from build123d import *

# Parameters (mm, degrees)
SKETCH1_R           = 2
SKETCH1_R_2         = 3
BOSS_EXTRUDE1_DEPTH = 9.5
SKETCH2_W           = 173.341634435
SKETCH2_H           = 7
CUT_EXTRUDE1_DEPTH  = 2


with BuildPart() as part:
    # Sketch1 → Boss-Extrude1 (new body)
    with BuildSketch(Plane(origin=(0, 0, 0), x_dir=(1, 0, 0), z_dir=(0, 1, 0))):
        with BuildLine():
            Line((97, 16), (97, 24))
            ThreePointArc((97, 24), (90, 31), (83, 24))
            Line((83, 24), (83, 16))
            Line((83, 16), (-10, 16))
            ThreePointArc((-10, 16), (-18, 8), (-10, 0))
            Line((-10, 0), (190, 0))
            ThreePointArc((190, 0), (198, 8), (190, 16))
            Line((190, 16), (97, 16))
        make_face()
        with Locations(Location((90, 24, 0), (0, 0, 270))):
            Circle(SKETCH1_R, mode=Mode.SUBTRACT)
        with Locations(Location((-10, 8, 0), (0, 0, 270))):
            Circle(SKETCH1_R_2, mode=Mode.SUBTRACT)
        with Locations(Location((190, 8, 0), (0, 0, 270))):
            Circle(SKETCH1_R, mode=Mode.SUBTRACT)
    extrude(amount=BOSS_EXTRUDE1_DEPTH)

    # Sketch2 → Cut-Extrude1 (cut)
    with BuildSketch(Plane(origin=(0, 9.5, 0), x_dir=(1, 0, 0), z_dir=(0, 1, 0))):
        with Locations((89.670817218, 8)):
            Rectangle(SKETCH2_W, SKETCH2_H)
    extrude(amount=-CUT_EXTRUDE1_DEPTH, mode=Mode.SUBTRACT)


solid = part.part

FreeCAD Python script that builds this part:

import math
import FreeCAD as App
import Part
import Sketcher
Q = App.Units.Quantity


def add_polygon(sketch, points):
    """Adds a closed chain of lines whose ends are joined by coincident constraints."""
    first, n = sketch.GeometryCount, len(points)
    for a, b in zip(points, points[1:] + points[:1]):
        sketch.addGeometry(Part.LineSegment(App.Vector(*a, 0), App.Vector(*b, 0)), False)
    for i in range(n):
        sketch.addConstraint(Sketcher.Constraint("Coincident", first + i, 2, first + (i + 1) % n, 1))

doc = App.newDocument("Part")
body = doc.addObject("PartDesign::Body", "Body")

sketch1 = doc.addObject("Sketcher::SketchObject", "Sketch")
body.addObject(sketch1)
sketch1.AttachmentSupport = (doc.XZ_Plane, [""])
sketch1.MapMode = "FlatFace"
sketch1.addGeometry([
    Part.LineSegment(App.Vector(97, -16, 0), App.Vector(97, -24, 0)),
    Part.ArcOfCircle(Part.Circle(App.Vector(90, -24, 0), App.Vector(0, 0, 1), 7), math.radians(180), math.radians(360)),
    Part.LineSegment(App.Vector(83, -24, 0), App.Vector(83, -16, 0)),
    Part.LineSegment(App.Vector(83, -16, 0), App.Vector(-10, -16, 0)),
    Part.ArcOfCircle(Part.Circle(App.Vector(-10, -8, 0), App.Vector(0, 0, 1), 8), math.radians(90), math.radians(270)),
    Part.LineSegment(App.Vector(-10, 0, 0), App.Vector(190, 0, 0)),
    Part.ArcOfCircle(Part.Circle(App.Vector(190, -8, 0), App.Vector(0, 0, 1), 8), math.radians(-90), math.radians(90)),
    Part.LineSegment(App.Vector(190, -16, 0), App.Vector(97, -16, 0)),
    Part.Circle(App.Vector(-10, -8, 0), App.Vector(0, 0, 1), 3),
    Part.Circle(App.Vector(190, -8, 0), App.Vector(0, 0, 1), 2),
    Part.Circle(App.Vector(90, -24, 0), App.Vector(0, 0, 1), 2),
], False)
sketch1.addConstraint([
    Sketcher.Constraint("Tangent", 0, 2, 1, 2),
    Sketcher.Constraint("Tangent", 1, 1, 2, 1),
    Sketcher.Constraint("Coincident", 2, 2, 3, 1),
    Sketcher.Constraint("Tangent", 3, 2, 4, 2),
    Sketcher.Constraint("Tangent", 4, 1, 5, 1),
    Sketcher.Constraint("Tangent", 5, 2, 6, 2),
    Sketcher.Constraint("Tangent", 6, 1, 7, 1),
    Sketcher.Constraint("Coincident", 7, 2, 0, 1),
    Sketcher.Constraint("Vertical", 0),
    Sketcher.Constraint("Vertical", 2),
    Sketcher.Constraint("Horizontal", 3),
    Sketcher.Constraint("Horizontal", 5),
    Sketcher.Constraint("Horizontal", 7),
    Sketcher.Constraint("Coincident", 8, 3, 4, 3),
    Sketcher.Constraint("Coincident", 9, 3, 6, 3),
    Sketcher.Constraint("Coincident", 10, 3, 1, 3),
    Sketcher.Constraint("Equal", 4, 6),
    Sketcher.Constraint("Equal", 9, 10),
    Sketcher.Constraint("PointOnObject", 4, 1, -1),
    Sketcher.Constraint("Equal", 3, 7),
    Sketcher.Constraint("Diameter", 8, Q("6 mm")),
    Sketcher.Constraint("Diameter", 9, Q("4 mm")),
    Sketcher.Constraint("Radius", 1, Q("7 mm")),
    Sketcher.Constraint("Radius", 4, Q("8 mm")),
    Sketcher.Constraint("DistanceX", 3, 2, 3, 1, Q("93 mm")),
    Sketcher.Constraint("DistanceY", 0, 2, 0, 1, Q("8 mm")),
    Sketcher.Constraint("DistanceX", -1, 1, 1, 3, Q("90 mm")),
])
pad1 = doc.addObject("PartDesign::Pad", "Pad")
body.addObject(pad1)
pad1.Profile = sketch1
pad1.Length = 9.5
pad1.Reversed = True

sketch2 = doc.addObject("Sketcher::SketchObject", "Sketch001")
body.addObject(sketch2)
sketch2.AttachmentSupport = (doc.XZ_Plane, [""])
sketch2.MapMode = "FlatFace"
sketch2.AttachmentOffset = App.Placement(App.Vector(0, 0, -9.5), App.Rotation())
add_polygon(sketch2, [(3, -11.5), (3, -4.5), (176.341634, -4.5), (176.341634, -11.5)])
sketch2.addConstraint([
    Sketcher.Constraint("Vertical", 0),
    Sketcher.Constraint("Horizontal", 1),
    Sketcher.Constraint("Vertical", 2),
    Sketcher.Constraint("Horizontal", 3),
    Sketcher.Constraint("DistanceY", 0, 1, 0, 2, Q("7 mm")),
    Sketcher.Constraint("DistanceX", -1, 1, 0, 2, Q("3 mm")),
    Sketcher.Constraint("DistanceY", 0, 2, -1, 1, Q("4.5 mm")),
    Sketcher.Constraint("DistanceX", 1, 1, 1, 2, Q("173.341634 mm")),
])
pocket1 = doc.addObject("PartDesign::Pocket", "Pocket")
body.addObject(pocket1)
pocket1.Profile = sketch2
pocket1.Length = 2
pocket1.Reversed = True

doc.recompute()
